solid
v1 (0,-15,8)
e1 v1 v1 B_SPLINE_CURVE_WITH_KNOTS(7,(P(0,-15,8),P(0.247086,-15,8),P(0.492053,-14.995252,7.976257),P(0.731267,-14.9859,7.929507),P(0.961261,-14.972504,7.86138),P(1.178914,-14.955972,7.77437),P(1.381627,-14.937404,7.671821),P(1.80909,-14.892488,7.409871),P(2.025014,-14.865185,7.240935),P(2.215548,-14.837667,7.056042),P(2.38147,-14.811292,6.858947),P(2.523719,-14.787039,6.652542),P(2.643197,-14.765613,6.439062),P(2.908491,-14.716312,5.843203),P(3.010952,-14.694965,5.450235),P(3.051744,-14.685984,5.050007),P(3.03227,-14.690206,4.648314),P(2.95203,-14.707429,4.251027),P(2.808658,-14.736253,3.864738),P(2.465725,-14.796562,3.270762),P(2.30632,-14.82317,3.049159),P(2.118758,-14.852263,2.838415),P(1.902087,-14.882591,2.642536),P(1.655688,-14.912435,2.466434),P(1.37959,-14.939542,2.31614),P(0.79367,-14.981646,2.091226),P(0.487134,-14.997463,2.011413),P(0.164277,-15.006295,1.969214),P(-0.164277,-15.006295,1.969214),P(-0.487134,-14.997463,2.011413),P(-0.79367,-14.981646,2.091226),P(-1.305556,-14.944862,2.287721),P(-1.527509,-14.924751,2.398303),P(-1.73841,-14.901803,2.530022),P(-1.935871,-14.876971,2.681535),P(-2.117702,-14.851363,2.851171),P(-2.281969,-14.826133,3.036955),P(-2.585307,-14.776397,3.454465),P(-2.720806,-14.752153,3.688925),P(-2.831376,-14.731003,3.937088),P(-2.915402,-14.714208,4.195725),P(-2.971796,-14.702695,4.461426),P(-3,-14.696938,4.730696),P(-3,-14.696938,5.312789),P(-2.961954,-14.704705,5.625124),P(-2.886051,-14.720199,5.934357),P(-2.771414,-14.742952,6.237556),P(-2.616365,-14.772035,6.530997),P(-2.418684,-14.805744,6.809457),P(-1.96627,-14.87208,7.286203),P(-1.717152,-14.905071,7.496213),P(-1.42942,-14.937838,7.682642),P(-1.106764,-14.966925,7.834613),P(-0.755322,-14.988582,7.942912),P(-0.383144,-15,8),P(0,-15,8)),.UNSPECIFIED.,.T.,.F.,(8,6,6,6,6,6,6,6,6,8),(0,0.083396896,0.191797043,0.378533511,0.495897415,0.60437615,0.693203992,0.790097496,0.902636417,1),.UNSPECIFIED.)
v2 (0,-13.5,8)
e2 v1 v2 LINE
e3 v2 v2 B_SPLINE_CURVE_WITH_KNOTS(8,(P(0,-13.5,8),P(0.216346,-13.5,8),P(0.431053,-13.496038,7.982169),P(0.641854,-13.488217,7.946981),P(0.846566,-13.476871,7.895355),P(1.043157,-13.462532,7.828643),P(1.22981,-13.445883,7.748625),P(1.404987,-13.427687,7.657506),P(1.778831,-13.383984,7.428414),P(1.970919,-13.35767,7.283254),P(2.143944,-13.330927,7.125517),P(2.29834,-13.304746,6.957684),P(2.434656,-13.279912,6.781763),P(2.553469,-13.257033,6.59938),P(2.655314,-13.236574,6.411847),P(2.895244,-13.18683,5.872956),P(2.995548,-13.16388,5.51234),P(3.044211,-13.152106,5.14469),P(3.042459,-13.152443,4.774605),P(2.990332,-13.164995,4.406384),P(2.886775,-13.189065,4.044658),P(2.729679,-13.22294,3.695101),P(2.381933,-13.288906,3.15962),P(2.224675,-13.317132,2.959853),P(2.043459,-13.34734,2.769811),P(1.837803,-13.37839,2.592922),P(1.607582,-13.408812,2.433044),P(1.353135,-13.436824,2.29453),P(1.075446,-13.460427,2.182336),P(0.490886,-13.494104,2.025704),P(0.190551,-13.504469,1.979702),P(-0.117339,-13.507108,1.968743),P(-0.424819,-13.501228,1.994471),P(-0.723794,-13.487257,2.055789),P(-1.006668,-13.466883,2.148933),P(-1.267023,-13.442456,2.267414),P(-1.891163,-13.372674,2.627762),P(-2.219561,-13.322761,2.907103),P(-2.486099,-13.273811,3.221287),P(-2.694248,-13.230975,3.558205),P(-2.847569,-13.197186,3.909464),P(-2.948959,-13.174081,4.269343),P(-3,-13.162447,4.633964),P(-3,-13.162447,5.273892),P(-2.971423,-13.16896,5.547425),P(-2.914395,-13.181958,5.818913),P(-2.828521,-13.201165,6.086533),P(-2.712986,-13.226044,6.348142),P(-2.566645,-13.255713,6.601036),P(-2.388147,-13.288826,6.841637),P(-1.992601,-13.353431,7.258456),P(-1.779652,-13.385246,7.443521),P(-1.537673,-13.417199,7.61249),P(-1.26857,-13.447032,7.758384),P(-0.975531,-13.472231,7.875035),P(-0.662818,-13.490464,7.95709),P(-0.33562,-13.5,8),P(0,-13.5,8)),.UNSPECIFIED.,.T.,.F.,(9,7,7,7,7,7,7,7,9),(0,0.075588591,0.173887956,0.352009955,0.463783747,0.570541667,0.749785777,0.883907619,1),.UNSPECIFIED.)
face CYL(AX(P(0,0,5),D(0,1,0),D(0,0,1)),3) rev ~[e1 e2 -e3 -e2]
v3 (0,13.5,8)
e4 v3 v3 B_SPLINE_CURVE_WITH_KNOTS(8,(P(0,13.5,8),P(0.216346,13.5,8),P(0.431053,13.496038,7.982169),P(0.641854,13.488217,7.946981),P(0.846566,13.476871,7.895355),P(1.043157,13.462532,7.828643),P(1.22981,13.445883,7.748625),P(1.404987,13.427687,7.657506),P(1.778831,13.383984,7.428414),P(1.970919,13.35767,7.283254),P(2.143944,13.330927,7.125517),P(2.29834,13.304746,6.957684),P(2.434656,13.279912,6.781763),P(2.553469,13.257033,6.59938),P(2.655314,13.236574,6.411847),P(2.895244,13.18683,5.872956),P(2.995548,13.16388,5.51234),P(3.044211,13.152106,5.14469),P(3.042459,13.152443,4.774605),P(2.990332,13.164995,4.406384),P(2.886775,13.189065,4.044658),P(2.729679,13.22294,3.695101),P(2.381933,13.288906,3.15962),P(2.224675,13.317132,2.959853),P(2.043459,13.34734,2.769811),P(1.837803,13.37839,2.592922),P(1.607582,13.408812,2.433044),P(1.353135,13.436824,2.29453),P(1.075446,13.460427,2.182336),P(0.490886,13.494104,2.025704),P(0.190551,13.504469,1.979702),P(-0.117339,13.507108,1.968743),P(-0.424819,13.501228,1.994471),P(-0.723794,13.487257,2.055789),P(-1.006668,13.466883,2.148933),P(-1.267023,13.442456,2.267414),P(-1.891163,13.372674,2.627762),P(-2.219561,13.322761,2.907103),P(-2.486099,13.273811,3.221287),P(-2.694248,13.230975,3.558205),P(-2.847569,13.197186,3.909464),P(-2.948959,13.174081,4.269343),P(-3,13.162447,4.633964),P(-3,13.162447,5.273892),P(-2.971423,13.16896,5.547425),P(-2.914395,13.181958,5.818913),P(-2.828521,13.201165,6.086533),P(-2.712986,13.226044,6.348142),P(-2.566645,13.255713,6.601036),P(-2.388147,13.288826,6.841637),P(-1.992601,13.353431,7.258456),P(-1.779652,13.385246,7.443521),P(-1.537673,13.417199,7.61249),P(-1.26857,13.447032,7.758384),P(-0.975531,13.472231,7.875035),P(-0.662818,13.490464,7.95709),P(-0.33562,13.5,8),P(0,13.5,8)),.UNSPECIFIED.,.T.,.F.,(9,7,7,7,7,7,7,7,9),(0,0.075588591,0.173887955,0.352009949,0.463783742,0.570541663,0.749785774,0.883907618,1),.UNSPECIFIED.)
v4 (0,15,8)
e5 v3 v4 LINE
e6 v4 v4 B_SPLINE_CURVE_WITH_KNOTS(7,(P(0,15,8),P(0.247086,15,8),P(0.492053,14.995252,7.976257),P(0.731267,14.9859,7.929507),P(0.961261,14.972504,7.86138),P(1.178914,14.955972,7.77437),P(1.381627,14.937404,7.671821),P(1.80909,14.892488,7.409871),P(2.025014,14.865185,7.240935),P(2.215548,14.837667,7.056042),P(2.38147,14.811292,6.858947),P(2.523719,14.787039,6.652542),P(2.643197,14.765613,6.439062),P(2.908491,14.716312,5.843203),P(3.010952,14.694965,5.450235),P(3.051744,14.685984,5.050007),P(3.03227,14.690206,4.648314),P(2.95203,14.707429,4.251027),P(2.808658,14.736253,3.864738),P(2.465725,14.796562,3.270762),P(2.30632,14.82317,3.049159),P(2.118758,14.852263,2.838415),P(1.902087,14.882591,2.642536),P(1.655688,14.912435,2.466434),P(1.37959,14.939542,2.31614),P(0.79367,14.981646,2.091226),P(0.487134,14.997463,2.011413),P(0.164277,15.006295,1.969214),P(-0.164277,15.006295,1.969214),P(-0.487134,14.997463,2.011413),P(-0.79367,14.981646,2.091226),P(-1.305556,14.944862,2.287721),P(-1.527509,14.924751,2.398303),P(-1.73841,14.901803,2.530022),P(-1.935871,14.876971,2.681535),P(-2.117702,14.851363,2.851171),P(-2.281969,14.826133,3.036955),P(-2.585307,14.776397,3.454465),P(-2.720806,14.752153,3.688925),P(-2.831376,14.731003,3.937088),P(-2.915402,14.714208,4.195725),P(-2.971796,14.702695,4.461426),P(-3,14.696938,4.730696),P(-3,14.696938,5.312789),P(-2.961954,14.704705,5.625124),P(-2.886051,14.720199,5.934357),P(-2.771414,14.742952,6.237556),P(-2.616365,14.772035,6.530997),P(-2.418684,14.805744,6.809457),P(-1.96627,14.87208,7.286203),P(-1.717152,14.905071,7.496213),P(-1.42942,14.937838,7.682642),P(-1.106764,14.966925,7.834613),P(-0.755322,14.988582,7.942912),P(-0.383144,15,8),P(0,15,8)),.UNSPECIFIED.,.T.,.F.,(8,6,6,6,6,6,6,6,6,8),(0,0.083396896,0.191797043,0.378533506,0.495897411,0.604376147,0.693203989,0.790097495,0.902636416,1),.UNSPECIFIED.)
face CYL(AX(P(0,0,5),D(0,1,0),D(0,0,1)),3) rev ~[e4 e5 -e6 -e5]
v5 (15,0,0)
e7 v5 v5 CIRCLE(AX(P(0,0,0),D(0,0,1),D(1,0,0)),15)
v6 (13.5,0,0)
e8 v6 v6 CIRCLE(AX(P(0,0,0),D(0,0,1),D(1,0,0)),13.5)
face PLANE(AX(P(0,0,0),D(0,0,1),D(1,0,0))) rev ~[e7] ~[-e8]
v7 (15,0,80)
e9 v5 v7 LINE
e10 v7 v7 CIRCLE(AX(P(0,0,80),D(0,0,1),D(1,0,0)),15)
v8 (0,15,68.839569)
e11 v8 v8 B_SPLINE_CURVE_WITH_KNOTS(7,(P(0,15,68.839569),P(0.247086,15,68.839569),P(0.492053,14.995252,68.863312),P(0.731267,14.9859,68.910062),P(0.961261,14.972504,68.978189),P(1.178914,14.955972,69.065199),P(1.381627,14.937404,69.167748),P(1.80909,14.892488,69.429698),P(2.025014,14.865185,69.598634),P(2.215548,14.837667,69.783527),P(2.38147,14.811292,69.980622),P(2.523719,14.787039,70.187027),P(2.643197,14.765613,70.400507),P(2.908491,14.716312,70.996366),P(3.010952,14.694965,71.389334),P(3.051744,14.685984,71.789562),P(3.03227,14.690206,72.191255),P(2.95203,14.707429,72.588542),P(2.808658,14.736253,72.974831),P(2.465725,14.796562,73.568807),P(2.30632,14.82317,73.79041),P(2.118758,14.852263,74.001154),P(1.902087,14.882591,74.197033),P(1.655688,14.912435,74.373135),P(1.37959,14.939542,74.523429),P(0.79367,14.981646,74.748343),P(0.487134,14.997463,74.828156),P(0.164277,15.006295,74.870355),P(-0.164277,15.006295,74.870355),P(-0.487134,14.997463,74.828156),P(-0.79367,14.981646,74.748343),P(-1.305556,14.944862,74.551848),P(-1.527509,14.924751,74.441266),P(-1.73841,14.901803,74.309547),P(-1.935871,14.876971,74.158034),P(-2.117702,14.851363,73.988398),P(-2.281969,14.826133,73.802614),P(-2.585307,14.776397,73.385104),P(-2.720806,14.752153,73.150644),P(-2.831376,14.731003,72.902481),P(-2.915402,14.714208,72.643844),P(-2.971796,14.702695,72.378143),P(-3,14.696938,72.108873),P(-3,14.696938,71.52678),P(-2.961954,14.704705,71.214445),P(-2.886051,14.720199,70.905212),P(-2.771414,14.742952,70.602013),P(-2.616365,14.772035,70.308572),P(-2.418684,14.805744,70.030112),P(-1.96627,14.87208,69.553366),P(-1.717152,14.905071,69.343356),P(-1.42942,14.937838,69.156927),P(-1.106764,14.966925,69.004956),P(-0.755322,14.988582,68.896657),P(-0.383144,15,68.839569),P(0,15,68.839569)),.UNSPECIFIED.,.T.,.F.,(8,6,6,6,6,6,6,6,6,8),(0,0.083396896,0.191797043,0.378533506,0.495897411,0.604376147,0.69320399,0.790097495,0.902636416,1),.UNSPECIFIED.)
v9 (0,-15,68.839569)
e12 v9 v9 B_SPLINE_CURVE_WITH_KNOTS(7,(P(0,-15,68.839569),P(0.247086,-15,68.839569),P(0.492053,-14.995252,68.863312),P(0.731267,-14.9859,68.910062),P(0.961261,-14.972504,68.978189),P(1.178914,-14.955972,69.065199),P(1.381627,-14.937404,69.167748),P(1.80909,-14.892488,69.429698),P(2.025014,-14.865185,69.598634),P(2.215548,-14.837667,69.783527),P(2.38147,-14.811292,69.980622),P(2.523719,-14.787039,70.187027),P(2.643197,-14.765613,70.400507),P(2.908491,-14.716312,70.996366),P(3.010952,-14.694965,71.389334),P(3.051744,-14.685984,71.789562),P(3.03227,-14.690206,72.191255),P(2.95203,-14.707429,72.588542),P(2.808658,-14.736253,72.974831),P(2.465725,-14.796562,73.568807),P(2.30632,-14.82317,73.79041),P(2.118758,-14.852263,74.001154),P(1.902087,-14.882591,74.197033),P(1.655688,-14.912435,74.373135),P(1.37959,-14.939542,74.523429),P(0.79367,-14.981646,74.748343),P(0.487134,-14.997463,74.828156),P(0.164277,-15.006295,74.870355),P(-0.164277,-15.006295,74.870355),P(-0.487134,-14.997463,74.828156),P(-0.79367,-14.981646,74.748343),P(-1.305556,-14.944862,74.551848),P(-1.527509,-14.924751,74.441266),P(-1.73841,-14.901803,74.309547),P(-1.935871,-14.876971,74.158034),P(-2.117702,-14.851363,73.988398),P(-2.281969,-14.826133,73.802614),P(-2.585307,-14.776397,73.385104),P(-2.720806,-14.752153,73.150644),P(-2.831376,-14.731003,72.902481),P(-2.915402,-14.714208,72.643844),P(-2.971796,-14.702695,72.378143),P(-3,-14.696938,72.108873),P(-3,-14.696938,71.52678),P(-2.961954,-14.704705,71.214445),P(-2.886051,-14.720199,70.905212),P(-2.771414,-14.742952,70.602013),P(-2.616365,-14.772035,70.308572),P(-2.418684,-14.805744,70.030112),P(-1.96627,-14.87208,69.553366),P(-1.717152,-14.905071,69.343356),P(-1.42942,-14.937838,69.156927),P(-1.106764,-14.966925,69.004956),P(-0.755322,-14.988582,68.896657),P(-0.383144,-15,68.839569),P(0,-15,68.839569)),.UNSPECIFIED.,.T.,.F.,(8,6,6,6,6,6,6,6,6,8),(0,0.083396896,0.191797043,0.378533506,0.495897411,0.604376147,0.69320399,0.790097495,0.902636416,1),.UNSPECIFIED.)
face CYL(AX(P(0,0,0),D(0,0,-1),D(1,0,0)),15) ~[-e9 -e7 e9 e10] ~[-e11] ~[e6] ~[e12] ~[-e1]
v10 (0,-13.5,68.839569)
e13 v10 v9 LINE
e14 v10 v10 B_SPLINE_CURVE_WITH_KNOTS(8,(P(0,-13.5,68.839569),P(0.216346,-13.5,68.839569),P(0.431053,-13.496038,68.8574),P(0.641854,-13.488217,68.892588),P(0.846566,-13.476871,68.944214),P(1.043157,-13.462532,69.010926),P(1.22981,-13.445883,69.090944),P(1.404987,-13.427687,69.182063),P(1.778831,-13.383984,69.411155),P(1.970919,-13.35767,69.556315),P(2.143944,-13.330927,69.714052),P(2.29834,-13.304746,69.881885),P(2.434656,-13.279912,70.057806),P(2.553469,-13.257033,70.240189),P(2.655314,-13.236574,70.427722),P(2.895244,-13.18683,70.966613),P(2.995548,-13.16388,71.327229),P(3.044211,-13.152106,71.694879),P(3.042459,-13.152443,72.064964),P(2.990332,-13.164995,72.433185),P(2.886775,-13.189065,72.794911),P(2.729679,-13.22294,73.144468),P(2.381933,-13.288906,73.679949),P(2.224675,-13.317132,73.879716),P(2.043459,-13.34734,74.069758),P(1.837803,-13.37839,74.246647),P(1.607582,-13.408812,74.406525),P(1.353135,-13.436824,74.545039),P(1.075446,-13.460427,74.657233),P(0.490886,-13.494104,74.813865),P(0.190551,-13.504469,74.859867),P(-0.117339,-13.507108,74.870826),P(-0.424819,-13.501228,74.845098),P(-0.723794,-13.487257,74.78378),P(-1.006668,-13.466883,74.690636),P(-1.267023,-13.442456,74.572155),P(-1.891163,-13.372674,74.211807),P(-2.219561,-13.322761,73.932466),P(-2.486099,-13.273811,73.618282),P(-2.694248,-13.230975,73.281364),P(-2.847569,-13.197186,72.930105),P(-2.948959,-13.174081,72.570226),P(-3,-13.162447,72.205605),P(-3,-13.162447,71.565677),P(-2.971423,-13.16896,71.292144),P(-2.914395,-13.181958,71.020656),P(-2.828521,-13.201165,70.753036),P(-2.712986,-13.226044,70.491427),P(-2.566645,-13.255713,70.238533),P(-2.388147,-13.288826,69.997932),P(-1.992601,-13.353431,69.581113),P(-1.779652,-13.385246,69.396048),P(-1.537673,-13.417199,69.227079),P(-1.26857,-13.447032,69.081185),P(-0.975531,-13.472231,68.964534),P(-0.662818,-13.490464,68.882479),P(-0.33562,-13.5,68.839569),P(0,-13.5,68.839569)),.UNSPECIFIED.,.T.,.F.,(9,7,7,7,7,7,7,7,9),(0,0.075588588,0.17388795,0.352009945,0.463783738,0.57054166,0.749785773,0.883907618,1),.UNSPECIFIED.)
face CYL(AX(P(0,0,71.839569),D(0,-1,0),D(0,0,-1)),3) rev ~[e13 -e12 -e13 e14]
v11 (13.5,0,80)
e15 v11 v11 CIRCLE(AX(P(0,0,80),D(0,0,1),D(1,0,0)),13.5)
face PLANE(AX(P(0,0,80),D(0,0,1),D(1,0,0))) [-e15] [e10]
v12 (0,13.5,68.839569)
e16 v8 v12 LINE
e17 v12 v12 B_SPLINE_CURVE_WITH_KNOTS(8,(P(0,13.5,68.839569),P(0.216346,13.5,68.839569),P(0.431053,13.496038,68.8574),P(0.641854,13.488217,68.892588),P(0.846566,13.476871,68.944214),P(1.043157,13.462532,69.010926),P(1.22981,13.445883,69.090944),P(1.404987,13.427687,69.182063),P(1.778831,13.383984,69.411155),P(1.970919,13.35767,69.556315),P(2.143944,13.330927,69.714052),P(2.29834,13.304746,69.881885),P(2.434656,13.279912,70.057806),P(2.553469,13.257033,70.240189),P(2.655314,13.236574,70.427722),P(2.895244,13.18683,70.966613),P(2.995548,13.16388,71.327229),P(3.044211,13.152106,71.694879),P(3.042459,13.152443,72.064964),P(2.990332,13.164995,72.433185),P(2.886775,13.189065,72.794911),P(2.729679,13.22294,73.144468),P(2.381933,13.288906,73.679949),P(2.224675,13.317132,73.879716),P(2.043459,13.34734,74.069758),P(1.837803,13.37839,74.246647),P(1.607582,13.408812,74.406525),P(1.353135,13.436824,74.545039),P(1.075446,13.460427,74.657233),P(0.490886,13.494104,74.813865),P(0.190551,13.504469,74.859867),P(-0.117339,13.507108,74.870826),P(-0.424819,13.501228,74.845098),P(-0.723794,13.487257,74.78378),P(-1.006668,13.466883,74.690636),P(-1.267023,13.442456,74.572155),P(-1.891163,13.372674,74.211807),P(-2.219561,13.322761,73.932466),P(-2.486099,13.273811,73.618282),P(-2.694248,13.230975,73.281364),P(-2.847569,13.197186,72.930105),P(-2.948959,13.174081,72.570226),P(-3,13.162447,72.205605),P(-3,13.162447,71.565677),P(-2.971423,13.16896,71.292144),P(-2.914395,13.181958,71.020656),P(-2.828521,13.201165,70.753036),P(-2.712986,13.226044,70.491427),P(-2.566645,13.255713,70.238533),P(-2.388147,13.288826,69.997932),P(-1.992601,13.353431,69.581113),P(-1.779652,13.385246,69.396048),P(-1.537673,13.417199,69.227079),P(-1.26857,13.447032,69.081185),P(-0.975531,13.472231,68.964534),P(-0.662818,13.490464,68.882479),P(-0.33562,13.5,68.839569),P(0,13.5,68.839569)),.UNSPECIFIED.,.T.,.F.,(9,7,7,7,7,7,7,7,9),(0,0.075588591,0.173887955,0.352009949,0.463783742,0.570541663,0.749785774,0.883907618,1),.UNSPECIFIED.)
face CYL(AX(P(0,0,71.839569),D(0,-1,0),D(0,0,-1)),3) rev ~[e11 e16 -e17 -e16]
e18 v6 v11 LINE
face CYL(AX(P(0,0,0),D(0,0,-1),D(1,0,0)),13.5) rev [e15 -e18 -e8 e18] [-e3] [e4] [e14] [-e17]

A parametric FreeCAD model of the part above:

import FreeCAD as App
import Part
import Sketcher

V = App.Vector
Q = App.Units.Quantity

doc = App.newDocument("Part")
body = doc.addObject("PartDesign::Body", "Body")

# Sketch on XY plane
sketch1 = body.newObject("Sketcher::SketchObject", "Sketch")
sketch1.AttachmentSupport = (doc.getObject("XY_Plane"), [""])
sketch1.MapMode = "FlatFace"
sketch1.addGeometry(Part.Circle(V(0, 0, 0), V(0, 0, 1), 15), False)
sketch1.addGeometry(Part.Circle(V(0, 0, 0), V(0, 0, 1), 14), False)
sketch1.addConstraint(Sketcher.Constraint("Coincident", 0, 3, -1, 1))
sketch1.addConstraint(Sketcher.Constraint("Coincident", 1, 3, -1, 1))
sketch1.addConstraint(Sketcher.Constraint("Diameter", 0, Q("30 mm")))
sketch1.addConstraint(Sketcher.Constraint("Diameter", 1, Q("27 mm")))
pad1 = body.newObject("PartDesign::Pad", "Pad")
pad1.Profile = sketch1
pad1.Length = 80

# Sketch on XZ plane
sketch2 = body.newObject("Sketcher::SketchObject", "Sketch001")
sketch2.AttachmentSupport = (doc.getObject("XZ_Plane"), [""])
sketch2.MapMode = "FlatFace"
sketch2.addGeometry(Part.Circle(V(0, 5, 0), V(0, 0, 1), 3), False)
sketch2.addConstraint(Sketcher.Constraint("PointOnObject", 0, 3, -2))
sketch2.addConstraint(Sketcher.Constraint("Diameter", 0, Q("6 mm")))
sketch2.addConstraint(Sketcher.Constraint("DistanceY", -1, 1, 0, 3, Q("5 mm")))
pocket1 = body.newObject("PartDesign::Pocket", "Pocket")
pocket1.Profile = sketch2
pocket1.Length = 66
pocket1.Midplane = True

# Sketch on XZ plane
sketch3 = body.newObject("Sketcher::SketchObject", "Sketch002")
sketch3.AttachmentSupport = (doc.getObject("XZ_Plane"), [""])
sketch3.MapMode = "FlatFace"
sketch3.addGeometry(Part.Circle(V(0, 71.8, 0), V(0, 0, 1), 3), False)
sketch3.addConstraint(Sketcher.Constraint("PointOnObject", 0, 3, -2))
sketch3.addConstraint(Sketcher.Constraint("Diameter", 0, Q("6 mm")))
sketch3.addConstraint(Sketcher.Constraint("DistanceY", -1, 1, 0, 3, Q("71.839569 mm")))
pocket2 = body.newObject("PartDesign::Pocket", "Pocket001")
pocket2.Profile = sketch3
pocket2.Length = 66
pocket2.Midplane = True

doc.recompute()
